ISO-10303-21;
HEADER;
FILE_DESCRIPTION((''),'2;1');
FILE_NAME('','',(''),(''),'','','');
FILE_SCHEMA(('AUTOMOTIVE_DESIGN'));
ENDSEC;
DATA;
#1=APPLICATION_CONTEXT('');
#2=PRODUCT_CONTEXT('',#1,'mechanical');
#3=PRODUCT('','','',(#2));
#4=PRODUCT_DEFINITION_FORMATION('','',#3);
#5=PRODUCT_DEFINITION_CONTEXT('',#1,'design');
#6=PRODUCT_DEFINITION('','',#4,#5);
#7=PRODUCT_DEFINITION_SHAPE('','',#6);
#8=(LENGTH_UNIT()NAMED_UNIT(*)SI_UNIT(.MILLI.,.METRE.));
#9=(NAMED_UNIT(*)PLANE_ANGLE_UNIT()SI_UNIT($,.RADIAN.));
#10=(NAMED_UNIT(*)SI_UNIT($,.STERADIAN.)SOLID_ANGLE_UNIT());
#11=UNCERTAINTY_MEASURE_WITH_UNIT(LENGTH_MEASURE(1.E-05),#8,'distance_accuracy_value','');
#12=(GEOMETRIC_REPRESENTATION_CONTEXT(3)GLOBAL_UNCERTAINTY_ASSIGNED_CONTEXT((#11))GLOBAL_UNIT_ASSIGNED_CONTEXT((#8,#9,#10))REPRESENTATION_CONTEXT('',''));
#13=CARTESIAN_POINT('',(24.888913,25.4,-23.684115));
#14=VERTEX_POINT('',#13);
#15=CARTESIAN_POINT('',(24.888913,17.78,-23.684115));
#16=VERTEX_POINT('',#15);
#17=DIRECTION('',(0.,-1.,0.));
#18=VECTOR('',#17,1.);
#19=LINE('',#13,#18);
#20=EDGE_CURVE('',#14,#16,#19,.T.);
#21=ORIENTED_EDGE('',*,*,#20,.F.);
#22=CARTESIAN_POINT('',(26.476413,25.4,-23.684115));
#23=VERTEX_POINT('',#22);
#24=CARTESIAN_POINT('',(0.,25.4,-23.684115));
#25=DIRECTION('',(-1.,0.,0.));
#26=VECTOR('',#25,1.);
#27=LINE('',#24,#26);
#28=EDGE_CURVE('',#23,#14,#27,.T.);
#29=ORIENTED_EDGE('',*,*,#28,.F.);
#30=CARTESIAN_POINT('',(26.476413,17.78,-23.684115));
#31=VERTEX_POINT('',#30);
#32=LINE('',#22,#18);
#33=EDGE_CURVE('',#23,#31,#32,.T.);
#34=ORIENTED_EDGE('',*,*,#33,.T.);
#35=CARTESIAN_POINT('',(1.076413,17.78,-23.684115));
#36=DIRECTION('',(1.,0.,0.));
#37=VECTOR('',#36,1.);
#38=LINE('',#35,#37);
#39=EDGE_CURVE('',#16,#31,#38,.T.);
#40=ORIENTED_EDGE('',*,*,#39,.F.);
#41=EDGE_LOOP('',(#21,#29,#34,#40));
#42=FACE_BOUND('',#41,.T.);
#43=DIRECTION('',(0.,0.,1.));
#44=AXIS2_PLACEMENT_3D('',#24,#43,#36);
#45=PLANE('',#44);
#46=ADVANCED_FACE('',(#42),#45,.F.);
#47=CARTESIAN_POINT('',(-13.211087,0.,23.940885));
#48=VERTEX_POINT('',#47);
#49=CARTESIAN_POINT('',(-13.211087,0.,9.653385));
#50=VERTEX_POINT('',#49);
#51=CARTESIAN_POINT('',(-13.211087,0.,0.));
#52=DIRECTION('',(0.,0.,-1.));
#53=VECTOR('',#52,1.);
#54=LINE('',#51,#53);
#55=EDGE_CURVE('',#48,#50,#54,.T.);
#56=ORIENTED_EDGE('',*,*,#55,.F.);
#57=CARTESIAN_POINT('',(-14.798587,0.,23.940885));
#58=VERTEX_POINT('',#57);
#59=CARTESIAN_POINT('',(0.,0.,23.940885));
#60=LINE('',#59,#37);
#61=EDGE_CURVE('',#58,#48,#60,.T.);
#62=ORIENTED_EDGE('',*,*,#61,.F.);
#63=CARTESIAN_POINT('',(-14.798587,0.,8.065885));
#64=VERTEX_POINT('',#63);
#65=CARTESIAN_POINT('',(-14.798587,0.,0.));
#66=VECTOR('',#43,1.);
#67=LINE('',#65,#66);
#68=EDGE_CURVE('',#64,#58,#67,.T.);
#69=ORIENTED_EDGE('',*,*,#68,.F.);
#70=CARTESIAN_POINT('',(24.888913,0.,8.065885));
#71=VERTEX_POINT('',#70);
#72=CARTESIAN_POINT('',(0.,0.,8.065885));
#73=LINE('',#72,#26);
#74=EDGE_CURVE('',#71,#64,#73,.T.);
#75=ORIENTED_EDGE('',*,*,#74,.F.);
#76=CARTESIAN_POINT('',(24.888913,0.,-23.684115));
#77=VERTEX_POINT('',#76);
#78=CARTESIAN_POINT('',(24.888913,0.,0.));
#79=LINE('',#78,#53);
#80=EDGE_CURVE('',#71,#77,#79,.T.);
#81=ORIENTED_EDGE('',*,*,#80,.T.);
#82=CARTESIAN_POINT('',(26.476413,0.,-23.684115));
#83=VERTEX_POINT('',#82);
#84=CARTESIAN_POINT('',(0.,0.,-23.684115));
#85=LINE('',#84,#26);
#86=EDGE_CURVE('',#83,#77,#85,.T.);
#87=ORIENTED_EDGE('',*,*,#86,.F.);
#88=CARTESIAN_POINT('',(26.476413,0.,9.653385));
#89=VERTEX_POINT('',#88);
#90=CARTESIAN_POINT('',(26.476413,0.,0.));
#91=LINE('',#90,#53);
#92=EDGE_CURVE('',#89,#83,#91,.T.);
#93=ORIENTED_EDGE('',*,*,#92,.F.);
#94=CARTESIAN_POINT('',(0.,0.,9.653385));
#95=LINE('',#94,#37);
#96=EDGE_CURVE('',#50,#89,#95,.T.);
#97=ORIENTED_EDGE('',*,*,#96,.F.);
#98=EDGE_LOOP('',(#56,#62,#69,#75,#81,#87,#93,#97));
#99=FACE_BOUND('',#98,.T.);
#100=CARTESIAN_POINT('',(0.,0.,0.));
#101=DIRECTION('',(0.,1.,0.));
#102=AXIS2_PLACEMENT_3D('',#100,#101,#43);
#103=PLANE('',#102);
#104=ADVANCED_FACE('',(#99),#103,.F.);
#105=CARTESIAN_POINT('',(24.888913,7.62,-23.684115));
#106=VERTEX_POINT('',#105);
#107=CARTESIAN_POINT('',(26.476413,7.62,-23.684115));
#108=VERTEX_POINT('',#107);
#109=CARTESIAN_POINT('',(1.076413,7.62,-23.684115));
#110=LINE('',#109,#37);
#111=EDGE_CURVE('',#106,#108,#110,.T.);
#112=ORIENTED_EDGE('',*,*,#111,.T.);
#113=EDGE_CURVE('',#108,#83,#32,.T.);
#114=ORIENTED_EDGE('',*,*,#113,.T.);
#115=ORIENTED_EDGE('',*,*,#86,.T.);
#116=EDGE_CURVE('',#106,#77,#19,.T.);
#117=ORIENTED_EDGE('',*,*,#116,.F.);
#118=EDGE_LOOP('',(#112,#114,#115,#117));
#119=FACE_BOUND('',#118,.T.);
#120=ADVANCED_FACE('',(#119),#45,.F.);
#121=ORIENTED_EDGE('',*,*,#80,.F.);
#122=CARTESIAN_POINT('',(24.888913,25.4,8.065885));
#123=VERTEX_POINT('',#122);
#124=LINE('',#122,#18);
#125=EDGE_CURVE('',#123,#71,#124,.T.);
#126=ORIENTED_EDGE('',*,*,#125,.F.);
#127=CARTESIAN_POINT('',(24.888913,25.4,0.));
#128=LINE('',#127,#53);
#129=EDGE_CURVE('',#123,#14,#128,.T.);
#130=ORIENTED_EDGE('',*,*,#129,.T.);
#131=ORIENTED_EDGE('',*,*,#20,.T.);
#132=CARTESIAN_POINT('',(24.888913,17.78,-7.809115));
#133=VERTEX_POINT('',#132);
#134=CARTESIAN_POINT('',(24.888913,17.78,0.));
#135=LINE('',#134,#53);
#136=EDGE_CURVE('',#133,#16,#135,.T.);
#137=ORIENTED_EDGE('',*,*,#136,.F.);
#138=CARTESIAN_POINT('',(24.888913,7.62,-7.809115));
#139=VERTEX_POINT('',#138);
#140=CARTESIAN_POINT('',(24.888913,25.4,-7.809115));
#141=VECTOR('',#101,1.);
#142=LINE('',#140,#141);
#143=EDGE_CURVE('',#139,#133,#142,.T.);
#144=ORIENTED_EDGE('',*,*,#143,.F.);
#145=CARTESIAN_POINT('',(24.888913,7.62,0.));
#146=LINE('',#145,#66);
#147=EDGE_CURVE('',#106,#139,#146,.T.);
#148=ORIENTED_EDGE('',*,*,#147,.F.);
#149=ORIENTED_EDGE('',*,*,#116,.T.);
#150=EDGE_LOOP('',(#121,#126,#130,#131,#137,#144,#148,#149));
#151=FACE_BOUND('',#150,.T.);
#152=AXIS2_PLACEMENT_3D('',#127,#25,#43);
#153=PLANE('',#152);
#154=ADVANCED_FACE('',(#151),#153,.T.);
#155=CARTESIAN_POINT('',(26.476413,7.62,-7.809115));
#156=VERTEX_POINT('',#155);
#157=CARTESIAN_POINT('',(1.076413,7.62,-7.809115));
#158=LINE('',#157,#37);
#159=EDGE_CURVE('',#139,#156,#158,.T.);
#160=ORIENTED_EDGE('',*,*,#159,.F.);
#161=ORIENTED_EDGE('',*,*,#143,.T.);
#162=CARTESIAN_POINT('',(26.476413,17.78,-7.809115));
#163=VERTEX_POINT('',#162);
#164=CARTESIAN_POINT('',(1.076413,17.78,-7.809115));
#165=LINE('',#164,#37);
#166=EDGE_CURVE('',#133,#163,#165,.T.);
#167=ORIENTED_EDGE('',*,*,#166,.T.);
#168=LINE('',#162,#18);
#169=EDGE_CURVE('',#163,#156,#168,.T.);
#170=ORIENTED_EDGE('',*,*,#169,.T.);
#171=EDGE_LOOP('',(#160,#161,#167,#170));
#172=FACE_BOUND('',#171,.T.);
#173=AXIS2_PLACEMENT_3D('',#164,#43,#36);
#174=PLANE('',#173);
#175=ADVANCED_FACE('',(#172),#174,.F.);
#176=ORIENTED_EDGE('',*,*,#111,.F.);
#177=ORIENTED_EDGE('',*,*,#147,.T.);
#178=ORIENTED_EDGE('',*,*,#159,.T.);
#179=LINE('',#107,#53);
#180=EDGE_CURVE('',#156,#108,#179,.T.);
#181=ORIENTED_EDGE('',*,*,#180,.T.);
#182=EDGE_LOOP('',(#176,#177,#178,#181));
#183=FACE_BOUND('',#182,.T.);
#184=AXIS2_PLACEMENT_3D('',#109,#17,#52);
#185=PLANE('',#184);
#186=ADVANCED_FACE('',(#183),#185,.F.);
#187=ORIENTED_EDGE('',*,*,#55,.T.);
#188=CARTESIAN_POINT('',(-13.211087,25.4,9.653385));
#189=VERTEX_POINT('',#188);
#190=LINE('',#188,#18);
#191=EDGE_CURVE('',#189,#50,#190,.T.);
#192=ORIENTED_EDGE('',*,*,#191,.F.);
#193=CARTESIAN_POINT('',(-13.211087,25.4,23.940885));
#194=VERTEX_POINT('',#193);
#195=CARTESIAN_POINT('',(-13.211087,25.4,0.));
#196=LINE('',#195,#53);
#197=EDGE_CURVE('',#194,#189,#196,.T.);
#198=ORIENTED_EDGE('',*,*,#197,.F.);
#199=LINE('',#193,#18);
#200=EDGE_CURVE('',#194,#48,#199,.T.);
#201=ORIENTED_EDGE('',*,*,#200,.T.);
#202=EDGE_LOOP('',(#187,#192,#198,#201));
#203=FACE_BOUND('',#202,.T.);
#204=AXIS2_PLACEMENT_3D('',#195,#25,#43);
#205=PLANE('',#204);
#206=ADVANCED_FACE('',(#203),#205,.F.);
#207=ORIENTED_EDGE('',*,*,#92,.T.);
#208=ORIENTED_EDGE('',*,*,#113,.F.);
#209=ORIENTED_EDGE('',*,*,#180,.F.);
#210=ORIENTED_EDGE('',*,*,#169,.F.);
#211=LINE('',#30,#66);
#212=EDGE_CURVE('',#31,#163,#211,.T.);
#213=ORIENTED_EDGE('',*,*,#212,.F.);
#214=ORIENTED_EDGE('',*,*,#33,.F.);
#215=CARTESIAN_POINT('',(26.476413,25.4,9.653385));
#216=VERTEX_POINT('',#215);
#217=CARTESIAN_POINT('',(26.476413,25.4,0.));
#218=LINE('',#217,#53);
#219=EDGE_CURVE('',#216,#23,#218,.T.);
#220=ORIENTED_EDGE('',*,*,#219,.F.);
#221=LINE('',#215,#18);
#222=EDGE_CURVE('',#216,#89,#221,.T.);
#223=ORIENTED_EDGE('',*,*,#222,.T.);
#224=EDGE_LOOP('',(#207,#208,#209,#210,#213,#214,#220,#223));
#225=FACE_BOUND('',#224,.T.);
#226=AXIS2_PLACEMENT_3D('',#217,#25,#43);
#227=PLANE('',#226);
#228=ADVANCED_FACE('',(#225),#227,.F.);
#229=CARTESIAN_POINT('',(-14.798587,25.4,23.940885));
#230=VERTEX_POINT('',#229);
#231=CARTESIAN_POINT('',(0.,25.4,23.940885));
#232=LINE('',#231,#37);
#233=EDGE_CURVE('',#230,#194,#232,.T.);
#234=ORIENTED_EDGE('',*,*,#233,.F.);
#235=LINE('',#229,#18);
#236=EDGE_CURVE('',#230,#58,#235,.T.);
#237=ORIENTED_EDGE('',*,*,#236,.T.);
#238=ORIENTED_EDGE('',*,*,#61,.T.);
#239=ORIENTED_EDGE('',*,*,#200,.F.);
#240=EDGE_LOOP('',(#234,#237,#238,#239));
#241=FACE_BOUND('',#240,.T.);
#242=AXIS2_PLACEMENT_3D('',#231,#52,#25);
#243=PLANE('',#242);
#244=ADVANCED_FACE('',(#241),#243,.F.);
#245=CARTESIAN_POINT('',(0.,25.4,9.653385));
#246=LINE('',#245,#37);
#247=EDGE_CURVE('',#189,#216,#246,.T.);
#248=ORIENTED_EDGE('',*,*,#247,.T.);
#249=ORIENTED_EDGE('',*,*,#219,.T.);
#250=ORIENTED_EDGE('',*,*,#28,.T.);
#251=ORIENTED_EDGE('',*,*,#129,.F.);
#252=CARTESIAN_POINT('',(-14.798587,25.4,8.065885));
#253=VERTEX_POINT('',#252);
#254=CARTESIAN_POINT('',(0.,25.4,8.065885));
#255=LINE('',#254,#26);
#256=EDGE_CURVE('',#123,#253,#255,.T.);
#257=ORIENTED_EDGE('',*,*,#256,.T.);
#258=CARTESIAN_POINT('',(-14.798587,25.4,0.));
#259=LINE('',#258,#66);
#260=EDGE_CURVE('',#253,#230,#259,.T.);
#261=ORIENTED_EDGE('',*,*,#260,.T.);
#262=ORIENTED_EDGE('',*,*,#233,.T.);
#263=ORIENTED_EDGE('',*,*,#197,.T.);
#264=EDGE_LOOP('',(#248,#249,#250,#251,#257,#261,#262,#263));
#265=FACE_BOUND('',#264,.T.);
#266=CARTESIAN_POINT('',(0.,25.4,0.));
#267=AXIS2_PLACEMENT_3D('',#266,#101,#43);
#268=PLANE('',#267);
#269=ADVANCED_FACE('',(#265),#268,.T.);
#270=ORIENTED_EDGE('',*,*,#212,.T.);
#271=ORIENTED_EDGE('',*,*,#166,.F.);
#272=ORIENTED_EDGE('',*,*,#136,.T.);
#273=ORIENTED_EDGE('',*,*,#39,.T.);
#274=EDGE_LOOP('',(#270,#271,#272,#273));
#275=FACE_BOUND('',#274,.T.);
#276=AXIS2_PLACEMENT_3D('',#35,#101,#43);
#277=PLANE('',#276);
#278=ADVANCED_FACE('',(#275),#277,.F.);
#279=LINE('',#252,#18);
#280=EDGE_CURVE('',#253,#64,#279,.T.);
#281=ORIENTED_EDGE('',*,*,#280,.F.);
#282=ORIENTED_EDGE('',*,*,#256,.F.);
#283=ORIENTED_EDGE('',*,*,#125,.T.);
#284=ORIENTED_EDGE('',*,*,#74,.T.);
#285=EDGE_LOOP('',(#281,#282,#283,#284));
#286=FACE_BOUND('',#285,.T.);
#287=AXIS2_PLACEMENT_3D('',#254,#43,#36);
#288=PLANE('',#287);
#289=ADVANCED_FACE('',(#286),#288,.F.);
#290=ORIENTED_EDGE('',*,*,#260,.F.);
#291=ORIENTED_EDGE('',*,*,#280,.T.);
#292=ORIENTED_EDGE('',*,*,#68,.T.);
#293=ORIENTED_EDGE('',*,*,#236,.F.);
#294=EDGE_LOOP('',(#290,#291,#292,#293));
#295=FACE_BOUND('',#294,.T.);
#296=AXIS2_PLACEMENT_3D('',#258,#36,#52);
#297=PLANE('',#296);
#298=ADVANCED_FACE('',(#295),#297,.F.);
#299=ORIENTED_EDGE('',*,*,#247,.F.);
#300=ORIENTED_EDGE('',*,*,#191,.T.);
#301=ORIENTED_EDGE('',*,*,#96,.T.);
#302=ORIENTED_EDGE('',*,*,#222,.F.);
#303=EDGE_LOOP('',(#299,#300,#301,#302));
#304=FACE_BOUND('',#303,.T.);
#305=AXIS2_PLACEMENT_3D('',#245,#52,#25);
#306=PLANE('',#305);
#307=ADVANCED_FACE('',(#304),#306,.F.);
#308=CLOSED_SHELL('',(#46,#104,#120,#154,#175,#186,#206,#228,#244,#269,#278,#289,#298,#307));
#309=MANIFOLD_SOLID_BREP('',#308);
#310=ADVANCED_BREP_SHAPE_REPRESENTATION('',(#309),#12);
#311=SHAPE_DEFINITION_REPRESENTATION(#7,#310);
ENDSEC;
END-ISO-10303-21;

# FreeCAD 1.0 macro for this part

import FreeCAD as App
import Part
import Sketcher
from FreeCAD import Vector
Q = App.Units.Quantity

doc = App.newDocument("Part")
body = doc.addObject("PartDesign::Body", "Body")

sketch1 = body.newObject("Sketcher::SketchObject", "Sketch")
sketch1.AttachmentSupport = (doc.getObject("XZ_Plane"), [""])
sketch1.MapMode = "FlatFace"
sketch1.addGeometry(Part.LineSegment(Vector(26.476413, -23.684115, 0), Vector(24.888913, -23.684115, 0)), False)
sketch1.addGeometry(Part.LineSegment(Vector(24.888913, -23.684115, 0), Vector(24.888913, 8.065885, 0)), False)
sketch1.addGeometry(Part.LineSegment(Vector(24.888913, 8.065885, 0), Vector(-14.798587, 8.065885, 0)), False)
sketch1.addGeometry(Part.LineSegment(Vector(-14.798587, 8.065885, 0), Vector(-14.798587, 23.940885, 0)), False)
sketch1.addGeometry(Part.LineSegment(Vector(-14.798587, 23.940885, 0), Vector(-13.211087, 23.940885, 0)), False)
sketch1.addGeometry(Part.LineSegment(Vector(-13.211087, 23.940885, 0), Vector(-13.211087, 9.653385, 0)), False)
sketch1.addGeometry(Part.LineSegment(Vector(-13.211087, 9.653385, 0), Vector(26.476413, 9.653385, 0)), False)
sketch1.addGeometry(Part.LineSegment(Vector(26.476413, 9.653385, 0), Vector(26.476413, -23.684115, 0)), False)
sketch1.addConstraint(Sketcher.Constraint("Coincident", 0, 2, 1, 1))
sketch1.addConstraint(Sketcher.Constraint("Coincident", 1, 2, 2, 1))
sketch1.addConstraint(Sketcher.Constraint("Coincident", 2, 2, 3, 1))
sketch1.addConstraint(Sketcher.Constraint("Coincident", 3, 2, 4, 1))
sketch1.addConstraint(Sketcher.Constraint("Coincident", 4, 2, 5, 1))
sketch1.addConstraint(Sketcher.Constraint("Coincident", 5, 2, 6, 1))
sketch1.addConstraint(Sketcher.Constraint("Coincident", 6, 2, 7, 1))
sketch1.addConstraint(Sketcher.Constraint("Coincident", 7, 2, 0, 1))
sketch1.addConstraint(Sketcher.Constraint("Horizontal", 0))
sketch1.addConstraint(Sketcher.Constraint("Vertical", 1))
sketch1.addConstraint(Sketcher.Constraint("Horizontal", 2))
sketch1.addConstraint(Sketcher.Constraint("Vertical", 3))
sketch1.addConstraint(Sketcher.Constraint("Horizontal", 4))
sketch1.addConstraint(Sketcher.Constraint("Vertical", 5))
sketch1.addConstraint(Sketcher.Constraint("Horizontal", 6))
sketch1.addConstraint(Sketcher.Constraint("Vertical", 7))
sketch1.addConstraint(Sketcher.Constraint("Equal", 0, 4))
sketch1.addConstraint(Sketcher.Constraint("DistanceY", 1, 1, 1, 2, Q("1.25 in")))
sketch1.addConstraint(Sketcher.Constraint("DistanceX", 4, 2, 1, 2, Q("1.5 in")))
sketch1.addConstraint(Sketcher.Constraint("DistanceX", 0, 2, 0, 1, Q("0.0625 in")))
sketch1.addConstraint(Sketcher.Constraint("DistanceY", 3, 1, 3, 2, Q("0.625 in")))
sketch1.addConstraint(Sketcher.Constraint("DistanceY", 5, 2, 5, 1, Q("0.5625 in")))
sketch1.addConstraint(Sketcher.Constraint("DistanceX", -1, 1, 0, 2, Q("24.888913 mm")))
sketch1.addConstraint(Sketcher.Constraint("DistanceY", 0, 2, -1, 1, Q("23.684115 mm")))
pad1 = body.newObject("PartDesign::Pad", "Pad")
pad1.Profile = sketch1
pad1.Length = Q("1 in")
pad1.Reversed = True

sketch2 = body.newObject("Sketcher::SketchObject", "Sketch001")
sketch2.AttachmentSupport = (doc.getObject("YZ_Plane"), [""])
sketch2.MapMode = "FlatFace"
sketch2.AttachmentOffset = App.Placement(Vector(0, 0, 26.476413), App.Rotation())
sketch2.addGeometry(Part.LineSegment(Vector(17.78, -7.809115, 0), Vector(7.62, -7.809115, 0)), False)
sketch2.addGeometry(Part.LineSegment(Vector(7.62, -7.809115, 0), Vector(7.62, -23.684115, 0)), False)
sketch2.addGeometry(Part.LineSegment(Vector(7.62, -23.684115, 0), Vector(17.78, -23.684115, 0)), False)
sketch2.addGeometry(Part.LineSegment(Vector(17.78, -23.684115, 0), Vector(17.78, -7.809115, 0)), False)
sketch2.addConstraint(Sketcher.Constraint("Coincident", 0, 2, 1, 1))
sketch2.addConstraint(Sketcher.Constraint("Coincident", 1, 2, 2, 1))
sketch2.addConstraint(Sketcher.Constraint("Coincident", 2, 2, 3, 1))
sketch2.addConstraint(Sketcher.Constraint("Coincident", 3, 2, 0, 1))
sketch2.addConstraint(Sketcher.Constraint("Horizontal", 0))
sketch2.addConstraint(Sketcher.Constraint("Vertical", 1))
sketch2.addConstraint(Sketcher.Constraint("Horizontal", 2))
sketch2.addConstraint(Sketcher.Constraint("Vertical", 3))
sketch2.addConstraint(Sketcher.Constraint("DistanceX", 0, 2, 0, 1, Q("0.4 in")))
sketch2.addConstraint(Sketcher.Constraint("DistanceX", -1, 1, 0, 2, Q("0.3 in")))
sketch2.addConstraint(Sketcher.Constraint("DistanceY", 1, 2, 1, 1, Q("0.625 in")))
sketch2.addConstraint(Sketcher.Constraint("DistanceY", 0, 2, -1, 1, Q("7.809115 mm")))
pocket1 = body.newObject("PartDesign::Pocket", "Pocket")
pocket1.Profile = sketch2
pocket1.Length = Q("1 in")

doc.recompute()
